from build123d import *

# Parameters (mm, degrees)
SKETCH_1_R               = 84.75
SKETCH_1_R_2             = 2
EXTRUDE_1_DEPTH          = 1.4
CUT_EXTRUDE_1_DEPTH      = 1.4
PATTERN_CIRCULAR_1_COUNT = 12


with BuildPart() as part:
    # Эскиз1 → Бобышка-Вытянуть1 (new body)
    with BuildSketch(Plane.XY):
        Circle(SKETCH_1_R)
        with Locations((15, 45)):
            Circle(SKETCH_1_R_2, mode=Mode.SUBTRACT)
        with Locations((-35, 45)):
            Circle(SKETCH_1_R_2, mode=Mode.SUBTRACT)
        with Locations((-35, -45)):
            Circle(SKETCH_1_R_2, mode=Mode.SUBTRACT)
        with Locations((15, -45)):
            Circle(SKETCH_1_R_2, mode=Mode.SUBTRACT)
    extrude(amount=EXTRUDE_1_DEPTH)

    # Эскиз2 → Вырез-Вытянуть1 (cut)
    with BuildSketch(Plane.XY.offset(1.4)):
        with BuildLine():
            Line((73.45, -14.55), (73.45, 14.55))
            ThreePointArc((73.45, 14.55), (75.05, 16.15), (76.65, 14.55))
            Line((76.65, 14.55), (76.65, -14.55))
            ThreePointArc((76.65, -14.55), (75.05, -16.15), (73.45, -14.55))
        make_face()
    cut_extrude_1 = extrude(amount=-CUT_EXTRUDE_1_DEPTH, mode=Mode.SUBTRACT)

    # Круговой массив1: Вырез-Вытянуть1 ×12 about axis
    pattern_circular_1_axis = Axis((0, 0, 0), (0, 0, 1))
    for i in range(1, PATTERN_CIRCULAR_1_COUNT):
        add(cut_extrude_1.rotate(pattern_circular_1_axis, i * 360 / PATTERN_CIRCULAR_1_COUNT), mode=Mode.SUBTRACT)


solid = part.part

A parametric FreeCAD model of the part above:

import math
import FreeCAD as App
import Part
import Sketcher
Q = App.Units.Quantity

doc = App.newDocument("Part")
params = doc.addObject("Spreadsheet::Sheet", "Params")
for row, (alias, value) in enumerate([
    ("sketch1_diameter", "4 mm"),
    ("sketch1_diameter2", "169.5 mm"),
    ("pad1_length", "1.4 mm"),
    ("sketch2_radius", "1.6 mm"),
    ("sketch2_height", "29.1 mm"),
    ("pocket1_length", "1.4 mm"),
], start=1):
    params.set(f"A{row}", alias)
    params.set(f"B{row}", "=" + value)
    params.setAlias(f"B{row}", alias)

body = doc.addObject("PartDesign::Body", "Body")

# Sketch on XY plane
sketch1 = body.newObject("Sketcher::SketchObject", "Sketch")
sketch1.AttachmentSupport = (doc.getObject("XY_Plane"), [""])
sketch1.MapMode = "FlatFace"
sketch1.addGeometry([
    Part.Circle(App.Vector(0, 0, 0), App.Vector(0, 0, 1), 84.8),  # 0
    Part.Circle(App.Vector(-35, -45, 0), App.Vector(0, 0, 1), 2),  # 1
    Part.Circle(App.Vector(15, -45, 0), App.Vector(0, 0, 1), 2),  # 2
    Part.Circle(App.Vector(-35, 45, 0), App.Vector(0, 0, 1), 2),  # 3
    Part.Circle(App.Vector(15, 45, 0), App.Vector(0, 0, 1), 2),  # 4
], False)
sketch1.addConstraint([
    Sketcher.Constraint("Coincident", 0, 3, -1, 1),
    Sketcher.Constraint("Equal", 1, 2),
    Sketcher.Constraint("Equal", 2, 3),
    Sketcher.Constraint("Equal", 3, 4),
    Sketcher.Constraint("Symmetric", 1, 3, 3, 3, -1),
    Sketcher.Constraint("Symmetric", 2, 3, 4, 3, -1),
    Sketcher.Constraint("Horizontal", 1, 3, 2, 3),
    Sketcher.Constraint("Diameter", 1, Q("4 mm")),
    Sketcher.Constraint("Diameter", 0, Q("169.5 mm")),
    Sketcher.Constraint("DistanceX", 1, 3, -1, 1, Q("35 mm")),
    Sketcher.Constraint("DistanceY", 1, 3, -1, 1, Q("45 mm")),
    Sketcher.Constraint("DistanceX", -1, 1, 2, 3, Q("15 mm")),
])
sketch1.setExpression("Constraints[7]", "Params.sketch1_diameter")
sketch1.setExpression("Constraints[8]", "Params.sketch1_diameter2")
pad1 = body.newObject("PartDesign::Pad", "Pad")
pad1.Profile = sketch1
pad1.setExpression("Length", "Params.pad1_length")

# Sketch on XY plane
sketch2 = body.newObject("Sketcher::SketchObject", "Sketch001")
sketch2.AttachmentSupport = (doc.getObject("XY_Plane"), [""])
sketch2.MapMode = "FlatFace"
sketch2.AttachmentOffset = App.Placement(App.Vector(0, 0, 1.4), App.Rotation())
sketch2.addGeometry([
    Part.LineSegment(App.Vector(73.5, 14.6, 0), App.Vector(73.5, -14.6, 0)),
    Part.ArcOfCircle(Part.Circle(App.Vector(75, -14.6, 0), App.Vector(0, 0, 1), 1.6), math.radians(180), math.radians(360)),
    Part.LineSegment(App.Vector(76.7, -14.6, 0), App.Vector(76.7, 14.6, 0)),
    Part.ArcOfCircle(Part.Circle(App.Vector(75, 14.6, 0), App.Vector(0, 0, 1), 1.6), math.radians(0), math.radians(180)),
], False)
sketch2.addConstraint([
    Sketcher.Constraint("Tangent", 0, 2, 1, 1),
    Sketcher.Constraint("Tangent", 1, 2, 2, 1),
    Sketcher.Constraint("Tangent", 2, 2, 3, 1),
    Sketcher.Constraint("Tangent", 3, 2, 0, 1),
    Sketcher.Constraint("Vertical", 0),
    Sketcher.Constraint("Vertical", 2),
    Sketcher.Constraint("Radius", 1, Q("1.6 mm")),
    Sketcher.Constraint("DistanceY", 0, 2, 0, 1, Q("29.1 mm")),
    Sketcher.Constraint("DistanceX", -1, 1, 1, 3, Q("75.05 mm")),
    Sketcher.Constraint("DistanceY", 1, 3, -1, 1, Q("14.55 mm")),
])
sketch2.setExpression("Constraints[6]", "Params.sketch2_radius")
sketch2.setExpression("Constraints[7]", "Params.sketch2_height")
pocket1 = body.newObject("PartDesign::Pocket", "Pocket")
pocket1.Profile = sketch2
pocket1.setExpression("Length", "Params.pocket1_length")
doc.recompute()

polarpattern = body.newObject("PartDesign::PolarPattern", "PolarPattern")
polarpattern.Originals = [pocket1]
polarpattern.Axis = (doc.getObject("Z_Axis"), [""])
polarpattern.Angle = 360
polarpattern.Occurrences = 12
body.Tip = polarpattern

doc.recompute()
